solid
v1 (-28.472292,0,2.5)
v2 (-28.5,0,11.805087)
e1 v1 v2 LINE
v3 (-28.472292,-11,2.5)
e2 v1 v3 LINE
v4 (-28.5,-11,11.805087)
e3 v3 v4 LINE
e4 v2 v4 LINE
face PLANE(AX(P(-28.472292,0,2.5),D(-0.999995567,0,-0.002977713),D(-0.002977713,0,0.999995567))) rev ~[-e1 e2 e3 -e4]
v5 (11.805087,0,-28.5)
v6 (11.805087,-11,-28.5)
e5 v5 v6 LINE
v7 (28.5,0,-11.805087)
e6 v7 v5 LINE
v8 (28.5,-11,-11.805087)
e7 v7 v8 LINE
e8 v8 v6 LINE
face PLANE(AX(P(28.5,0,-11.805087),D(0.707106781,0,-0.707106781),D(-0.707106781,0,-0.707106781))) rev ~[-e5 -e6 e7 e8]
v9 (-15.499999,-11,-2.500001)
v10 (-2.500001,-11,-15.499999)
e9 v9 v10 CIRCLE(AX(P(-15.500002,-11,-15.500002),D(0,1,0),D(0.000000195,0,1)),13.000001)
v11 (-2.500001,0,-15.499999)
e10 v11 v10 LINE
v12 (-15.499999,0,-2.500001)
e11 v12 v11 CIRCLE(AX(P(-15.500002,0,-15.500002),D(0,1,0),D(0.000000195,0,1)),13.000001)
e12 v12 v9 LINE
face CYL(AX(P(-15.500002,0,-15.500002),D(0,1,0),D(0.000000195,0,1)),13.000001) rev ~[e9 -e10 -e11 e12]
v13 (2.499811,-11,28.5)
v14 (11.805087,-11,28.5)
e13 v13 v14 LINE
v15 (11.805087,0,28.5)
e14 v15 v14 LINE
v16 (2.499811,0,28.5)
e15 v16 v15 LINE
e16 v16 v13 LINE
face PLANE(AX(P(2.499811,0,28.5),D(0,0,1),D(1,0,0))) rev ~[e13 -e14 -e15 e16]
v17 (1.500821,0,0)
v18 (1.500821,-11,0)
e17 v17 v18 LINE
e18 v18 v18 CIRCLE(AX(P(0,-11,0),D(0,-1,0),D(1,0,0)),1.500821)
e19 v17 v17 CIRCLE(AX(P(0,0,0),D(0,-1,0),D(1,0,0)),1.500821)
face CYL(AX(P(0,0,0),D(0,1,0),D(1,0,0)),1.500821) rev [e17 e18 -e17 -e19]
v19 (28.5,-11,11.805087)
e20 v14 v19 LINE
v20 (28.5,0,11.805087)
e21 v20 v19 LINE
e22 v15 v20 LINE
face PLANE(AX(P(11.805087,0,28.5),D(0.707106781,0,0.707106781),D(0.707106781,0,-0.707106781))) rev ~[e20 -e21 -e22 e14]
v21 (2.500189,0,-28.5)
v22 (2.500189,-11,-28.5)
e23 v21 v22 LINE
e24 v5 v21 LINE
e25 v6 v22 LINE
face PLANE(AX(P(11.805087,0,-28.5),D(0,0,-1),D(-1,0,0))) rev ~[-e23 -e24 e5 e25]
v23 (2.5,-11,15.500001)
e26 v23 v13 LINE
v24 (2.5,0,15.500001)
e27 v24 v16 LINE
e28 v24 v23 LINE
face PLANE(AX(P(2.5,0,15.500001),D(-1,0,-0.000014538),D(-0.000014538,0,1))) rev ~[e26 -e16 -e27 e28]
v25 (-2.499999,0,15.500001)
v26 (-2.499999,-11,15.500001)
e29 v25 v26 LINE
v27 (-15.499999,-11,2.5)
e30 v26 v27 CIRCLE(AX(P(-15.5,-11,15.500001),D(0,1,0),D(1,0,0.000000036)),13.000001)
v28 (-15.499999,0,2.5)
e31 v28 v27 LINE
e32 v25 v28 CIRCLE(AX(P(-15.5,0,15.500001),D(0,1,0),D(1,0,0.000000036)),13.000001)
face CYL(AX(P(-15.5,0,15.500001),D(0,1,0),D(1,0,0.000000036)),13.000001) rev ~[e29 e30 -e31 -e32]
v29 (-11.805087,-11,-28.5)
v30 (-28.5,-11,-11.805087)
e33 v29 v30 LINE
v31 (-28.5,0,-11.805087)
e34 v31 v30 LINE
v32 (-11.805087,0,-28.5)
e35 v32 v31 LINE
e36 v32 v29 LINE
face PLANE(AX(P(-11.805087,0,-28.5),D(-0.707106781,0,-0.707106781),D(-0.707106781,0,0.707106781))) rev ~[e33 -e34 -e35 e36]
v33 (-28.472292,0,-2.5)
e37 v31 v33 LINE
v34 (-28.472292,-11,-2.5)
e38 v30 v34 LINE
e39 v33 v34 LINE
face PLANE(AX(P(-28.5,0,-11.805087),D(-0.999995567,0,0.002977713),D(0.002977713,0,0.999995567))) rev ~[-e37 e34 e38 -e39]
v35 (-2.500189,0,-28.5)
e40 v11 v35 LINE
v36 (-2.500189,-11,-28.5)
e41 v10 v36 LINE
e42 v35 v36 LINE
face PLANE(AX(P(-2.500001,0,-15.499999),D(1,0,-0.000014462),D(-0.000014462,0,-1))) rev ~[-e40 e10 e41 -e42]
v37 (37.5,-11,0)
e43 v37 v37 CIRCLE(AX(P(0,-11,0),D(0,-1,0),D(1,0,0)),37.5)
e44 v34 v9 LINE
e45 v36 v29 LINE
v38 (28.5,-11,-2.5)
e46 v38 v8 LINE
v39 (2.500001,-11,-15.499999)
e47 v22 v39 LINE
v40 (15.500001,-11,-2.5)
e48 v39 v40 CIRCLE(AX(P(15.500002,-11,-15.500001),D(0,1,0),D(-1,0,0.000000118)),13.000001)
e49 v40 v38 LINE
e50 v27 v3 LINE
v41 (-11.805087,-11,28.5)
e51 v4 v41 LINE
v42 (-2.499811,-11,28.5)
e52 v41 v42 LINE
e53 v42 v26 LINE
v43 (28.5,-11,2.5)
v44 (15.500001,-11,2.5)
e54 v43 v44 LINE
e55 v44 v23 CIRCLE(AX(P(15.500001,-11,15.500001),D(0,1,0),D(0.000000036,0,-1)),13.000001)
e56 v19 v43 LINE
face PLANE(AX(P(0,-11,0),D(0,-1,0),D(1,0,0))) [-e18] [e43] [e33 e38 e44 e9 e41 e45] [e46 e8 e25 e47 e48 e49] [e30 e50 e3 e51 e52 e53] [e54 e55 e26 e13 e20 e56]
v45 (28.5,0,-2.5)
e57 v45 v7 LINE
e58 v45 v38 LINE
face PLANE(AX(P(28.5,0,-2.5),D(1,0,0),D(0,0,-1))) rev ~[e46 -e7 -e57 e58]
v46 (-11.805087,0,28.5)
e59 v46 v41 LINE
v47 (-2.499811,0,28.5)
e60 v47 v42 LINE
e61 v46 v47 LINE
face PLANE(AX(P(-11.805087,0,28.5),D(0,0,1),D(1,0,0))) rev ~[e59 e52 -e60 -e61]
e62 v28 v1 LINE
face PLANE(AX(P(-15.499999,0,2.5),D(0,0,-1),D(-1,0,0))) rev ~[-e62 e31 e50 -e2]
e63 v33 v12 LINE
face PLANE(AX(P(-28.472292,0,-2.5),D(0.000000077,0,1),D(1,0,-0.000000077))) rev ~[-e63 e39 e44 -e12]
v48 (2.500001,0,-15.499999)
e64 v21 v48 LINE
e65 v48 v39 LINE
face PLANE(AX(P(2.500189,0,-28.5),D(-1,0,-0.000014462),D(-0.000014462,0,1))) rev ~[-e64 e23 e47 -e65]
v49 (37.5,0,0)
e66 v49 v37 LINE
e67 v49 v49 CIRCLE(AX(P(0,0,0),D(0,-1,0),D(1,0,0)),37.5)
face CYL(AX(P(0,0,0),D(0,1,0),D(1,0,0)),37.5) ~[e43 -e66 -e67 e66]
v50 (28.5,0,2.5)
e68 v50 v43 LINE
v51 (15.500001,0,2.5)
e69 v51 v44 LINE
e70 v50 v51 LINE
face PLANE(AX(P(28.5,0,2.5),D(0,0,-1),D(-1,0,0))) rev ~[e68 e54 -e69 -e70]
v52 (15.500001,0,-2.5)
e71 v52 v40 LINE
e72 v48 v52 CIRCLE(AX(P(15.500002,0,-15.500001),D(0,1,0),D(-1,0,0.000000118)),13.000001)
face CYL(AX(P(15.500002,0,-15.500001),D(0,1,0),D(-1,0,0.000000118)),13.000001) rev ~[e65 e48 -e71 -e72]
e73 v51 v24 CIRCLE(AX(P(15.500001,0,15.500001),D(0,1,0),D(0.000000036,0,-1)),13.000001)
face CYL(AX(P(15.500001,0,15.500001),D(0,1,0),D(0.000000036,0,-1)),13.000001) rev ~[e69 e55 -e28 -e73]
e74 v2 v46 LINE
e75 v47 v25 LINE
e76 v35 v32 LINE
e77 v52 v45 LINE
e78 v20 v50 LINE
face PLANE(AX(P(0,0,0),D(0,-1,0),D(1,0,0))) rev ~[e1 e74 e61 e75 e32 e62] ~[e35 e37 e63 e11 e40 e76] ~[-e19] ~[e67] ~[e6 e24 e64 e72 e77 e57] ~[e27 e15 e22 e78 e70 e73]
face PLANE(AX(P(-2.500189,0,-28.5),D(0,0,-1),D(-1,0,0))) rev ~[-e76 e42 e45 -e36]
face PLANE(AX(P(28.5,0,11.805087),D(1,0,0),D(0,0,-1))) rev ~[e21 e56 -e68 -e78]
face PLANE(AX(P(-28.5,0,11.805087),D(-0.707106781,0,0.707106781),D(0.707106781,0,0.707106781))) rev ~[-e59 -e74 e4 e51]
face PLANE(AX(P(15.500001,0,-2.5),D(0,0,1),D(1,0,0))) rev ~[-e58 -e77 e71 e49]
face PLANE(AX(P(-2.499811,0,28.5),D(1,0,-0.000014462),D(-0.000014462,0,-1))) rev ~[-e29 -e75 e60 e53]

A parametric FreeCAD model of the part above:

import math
import FreeCAD as App
import Part
import Sketcher

V = App.Vector

doc = App.newDocument("Part")
body = doc.addObject("PartDesign::Body", "Body")

sketch1 = doc.addObject("Sketcher::SketchObject", "Sketch")
body.addObject(sketch1)
sketch1.AttachmentSupport = (doc.XZ_Plane, [""])
sketch1.MapMode = "FlatFace"
sketch1.addGeometry(Part.Circle(V(0, 0, 0), V(0, 0, 1), 37.5), False)
sketch1.addGeometry(Part.LineSegment(V(-28.5, -11.805087, 0), V(-28.472292, -2.5, 0)), False)
sketch1.addGeometry(Part.LineSegment(V(-28.472292, -2.5, 0), V(-15.499999, -2.500001, 0)), False)
sketch1.addGeometry(Part.ArcOfCircle(Part.Circle(V(-15.500002, -15.500002, 0), V(0, 0, 1), 13.000001), math.radians(0.000011), math.radians(89.999989)), False)
sketch1.addGeometry(Part.LineSegment(V(-2.500001, -15.499999, 0), V(-2.500189, -28.5, 0)), False)
sketch1.addGeometry(Part.LineSegment(V(-2.500189, -28.5, 0), V(-11.805087, -28.5, 0)), False)
sketch1.addGeometry(Part.LineSegment(V(-11.805087, -28.5, 0), V(-28.5, -11.805087, 0)), False)
sketch1.addGeometry(Part.LineSegment(V(2.500189, -28.5, 0), V(2.500001, -15.499999, 0)), False)
sketch1.addGeometry(Part.ArcOfCircle(Part.Circle(V(15.500002, -15.500001, 0), V(0, 0, 1), 13.000001), math.radians(90.000002), math.radians(179.999993)), False)
sketch1.addGeometry(Part.LineSegment(V(15.500001, -2.5, 0), V(28.5, -2.5, 0)), False)
sketch1.addGeometry(Part.LineSegment(V(28.5, -2.5, 0), V(28.5, -11.805087, 0)), False)
sketch1.addGeometry(Part.LineSegment(V(28.5, -11.805087, 0), V(11.805087, -28.5, 0)), False)
sketch1.addGeometry(Part.LineSegment(V(11.805087, -28.5, 0), V(2.500189, -28.5, 0)), False)
sketch1.addGeometry(Part.LineSegment(V(-2.499811, 28.5, 0), V(-2.499999, 15.500001, 0)), False)
sketch1.addGeometry(Part.ArcOfCircle(Part.Circle(V(-15.5, 15.500001, 0), V(0, 0, 1), 13.000001), math.radians(-89.999998), math.radians(0.000002)), False)
sketch1.addGeometry(Part.LineSegment(V(-15.499999, 2.5, 0), V(-28.472292, 2.5, 0)), False)
sketch1.addGeometry(Part.LineSegment(V(-28.472292, 2.5, 0), V(-28.5, 11.805087, 0)), False)
sketch1.addGeometry(Part.LineSegment(V(-28.5, 11.805087, 0), V(-11.805087, 28.5, 0)), False)
sketch1.addGeometry(Part.LineSegment(V(-11.805087, 28.5, 0), V(-2.499811, 28.5, 0)), False)
sketch1.addGeometry(Part.Circle(V(0, 0, 0), V(0, 0, 1), 1.500821), False)
sketch1.addGeometry(Part.LineSegment(V(28.5, 11.805087, 0), V(28.5, 2.5, 0)), False)
sketch1.addGeometry(Part.LineSegment(V(28.5, 2.5, 0), V(15.500001, 2.5, 0)), False)
sketch1.addGeometry(Part.ArcOfCircle(Part.Circle(V(15.500001, 15.500001, 0), V(0, 0, 1), 13.000001), math.radians(179.999998), math.radians(270.000002)), False)
sketch1.addGeometry(Part.LineSegment(V(2.5, 15.500001, 0), V(2.499811, 28.5, 0)), False)
sketch1.addGeometry(Part.LineSegment(V(2.499811, 28.5, 0), V(11.805087, 28.5, 0)), False)
sketch1.addGeometry(Part.LineSegment(V(11.805087, 28.5, 0), V(28.5, 11.805087, 0)), False)
sketch1.addConstraint(Sketcher.Constraint("Coincident", 1, 2, 2, 1))
sketch1.addConstraint(Sketcher.Constraint("Tangent", 2, 2, 3, 2))
sketch1.addConstraint(Sketcher.Constraint("Coincident", 3, 1, 4, 1))
sketch1.addConstraint(Sketcher.Constraint("Coincident", 4, 2, 5, 1))
sketch1.addConstraint(Sketcher.Constraint("Coincident", 5, 2, 6, 1))
sketch1.addConstraint(Sketcher.Constraint("Coincident", 6, 2, 1, 1))
sketch1.addConstraint(Sketcher.Constraint("Coincident", 7, 2, 8, 2))
sketch1.addConstraint(Sketcher.Constraint("Tangent", 8, 1, 9, 1))
sketch1.addConstraint(Sketcher.Constraint("Coincident", 9, 2, 10, 1))
sketch1.addConstraint(Sketcher.Constraint("Coincident", 10, 2, 11, 1))
sketch1.addConstraint(Sketcher.Constraint("Coincident", 11, 2, 12, 1))
sketch1.addConstraint(Sketcher.Constraint("Coincident", 12, 2, 7, 1))
sketch1.addConstraint(Sketcher.Constraint("Coincident", 13, 2, 14, 2))
sketch1.addConstraint(Sketcher.Constraint("Tangent", 14, 1, 15, 1))
sketch1.addConstraint(Sketcher.Constraint("Coincident", 15, 2, 16, 1))
sketch1.addConstraint(Sketcher.Constraint("Coincident", 16, 2, 17, 1))
sketch1.addConstraint(Sketcher.Constraint("Coincident", 17, 2, 18, 1))
sketch1.addConstraint(Sketcher.Constraint("Coincident", 18, 2, 13, 1))
sketch1.addConstraint(Sketcher.Constraint("Coincident", 20, 2, 21, 1))
sketch1.addConstraint(Sketcher.Constraint("Tangent", 21, 2, 22, 2))
sketch1.addConstraint(Sketcher.Constraint("Coincident", 22, 1, 23, 1))
sketch1.addConstraint(Sketcher.Constraint("Coincident", 23, 2, 24, 1))
sketch1.addConstraint(Sketcher.Constraint("Coincident", 24, 2, 25, 1))
sketch1.addConstraint(Sketcher.Constraint("Coincident", 25, 2, 20, 1))
sketch1.addConstraint(Sketcher.Constraint("Horizontal", 2))
sketch1.addConstraint(Sketcher.Constraint("Horizontal", 5))
sketch1.addConstraint(Sketcher.Constraint("Horizontal", 9))
sketch1.addConstraint(Sketcher.Constraint("Vertical", 10))
sketch1.addConstraint(Sketcher.Constraint("Horizontal", 12))
sketch1.addConstraint(Sketcher.Constraint("Horizontal", 15))
sketch1.addConstraint(Sketcher.Constraint("Horizontal", 18))
sketch1.addConstraint(Sketcher.Constraint("Vertical", 20))
sketch1.addConstraint(Sketcher.Constraint("Horizontal", 21))
sketch1.addConstraint(Sketcher.Constraint("Horizontal", 24))
sketch1.addConstraint(Sketcher.Constraint("Coincident", 0, 3, -1, 1))
sketch1.addConstraint(Sketcher.Constraint("Coincident", 19, 3, -1, 1))
sketch1.addConstraint(Sketcher.Constraint("Equal", 3, 8))
sketch1.addConstraint(Sketcher.Constraint("Equal", 8, 14))
sketch1.addConstraint(Sketcher.Constraint("Equal", 14, 22))
sketch1.addConstraint(Sketcher.Constraint("Symmetric", 8, 3, 14, 3, -1, 1))
sketch1.addConstraint(Sketcher.Constraint("Symmetric", 3, 3, 22, 3, -1, 1))
sketch1.addConstraint(Sketcher.Constraint("Symmetric", 10, 2, 16, 2, -1, 1))
sketch1.addConstraint(Sketcher.Constraint("Symmetric", 11, 2, 17, 2, -1, 1))
sketch1.addConstraint(Sketcher.Constraint("Symmetric", 5, 2, 24, 2, -1, 1))
sketch1.addConstraint(Sketcher.Constraint("Symmetric", 6, 2, 25, 2, -1, 1))
sketch1.addConstraint(Sketcher.Constraint("Symmetric", 3, 3, 8, 3, -2))
sketch1.addConstraint(Sketcher.Constraint("Symmetric", 6, 2, 10, 2, -2))
sketch1.addConstraint(Sketcher.Constraint("Symmetric", 5, 2, 11, 2, -2))
sketch1.addConstraint(Sketcher.Constraint("Perpendicular", 6, 11))
sketch1.addConstraint(Sketcher.Constraint("Parallel", 4, 13))
sketch1.addConstraint(Sketcher.Constraint("Parallel", 7, 23))
sketch1.addConstraint(Sketcher.Constraint("Horizontal", 8, 3, 3, 1))
sketch1.addConstraint(Sketcher.Constraint("Horizontal", 3, 1, 7, 2))
sketch1.addConstraint(Sketcher.Constraint("Horizontal", 22, 3, 13, 2))
sketch1.addConstraint(Sketcher.Constraint("Horizontal", 13, 2, 22, 1))
sketch1.addConstraint(Sketcher.Constraint("Vertical", 1, 2, 15, 2))
sketch1.addConstraint(Sketcher.Constraint("Equal", 5, 12))
sketch1.addConstraint(Sketcher.Constraint("Diameter", 0, 75.0))
sketch1.addConstraint(Sketcher.Constraint("Radius", 3, 13.000001))
sketch1.addConstraint(Sketcher.Constraint("DistanceX", 9, 1, 9, 2, 12.999999))
sketch1.addConstraint(Sketcher.Constraint("Distance", 4, 13.000001))
sketch1.addConstraint(Sketcher.Constraint("DistanceX", 14, 3, 8, 3, 31.000001))
sketch1.addConstraint(Sketcher.Constraint("DistanceY", 8, 3, 14, 3, 31.000001))
sketch1.addConstraint(Sketcher.Constraint("Diameter", 19, 3.001642))
sketch1.addConstraint(Sketcher.Constraint("Distance", 1, 9.305128))
sketch1.addConstraint(Sketcher.Constraint("DistanceX", 2, 1, 2, 2, 12.972293))
sketch1.addConstraint(Sketcher.Constraint("DistanceX", 5, 2, 5, 1, 9.304898))
pad1 = doc.addObject("PartDesign::Pad", "Pad")
body.addObject(pad1)
pad1.Profile = sketch1
pad1.Length = 11

doc.recompute()
